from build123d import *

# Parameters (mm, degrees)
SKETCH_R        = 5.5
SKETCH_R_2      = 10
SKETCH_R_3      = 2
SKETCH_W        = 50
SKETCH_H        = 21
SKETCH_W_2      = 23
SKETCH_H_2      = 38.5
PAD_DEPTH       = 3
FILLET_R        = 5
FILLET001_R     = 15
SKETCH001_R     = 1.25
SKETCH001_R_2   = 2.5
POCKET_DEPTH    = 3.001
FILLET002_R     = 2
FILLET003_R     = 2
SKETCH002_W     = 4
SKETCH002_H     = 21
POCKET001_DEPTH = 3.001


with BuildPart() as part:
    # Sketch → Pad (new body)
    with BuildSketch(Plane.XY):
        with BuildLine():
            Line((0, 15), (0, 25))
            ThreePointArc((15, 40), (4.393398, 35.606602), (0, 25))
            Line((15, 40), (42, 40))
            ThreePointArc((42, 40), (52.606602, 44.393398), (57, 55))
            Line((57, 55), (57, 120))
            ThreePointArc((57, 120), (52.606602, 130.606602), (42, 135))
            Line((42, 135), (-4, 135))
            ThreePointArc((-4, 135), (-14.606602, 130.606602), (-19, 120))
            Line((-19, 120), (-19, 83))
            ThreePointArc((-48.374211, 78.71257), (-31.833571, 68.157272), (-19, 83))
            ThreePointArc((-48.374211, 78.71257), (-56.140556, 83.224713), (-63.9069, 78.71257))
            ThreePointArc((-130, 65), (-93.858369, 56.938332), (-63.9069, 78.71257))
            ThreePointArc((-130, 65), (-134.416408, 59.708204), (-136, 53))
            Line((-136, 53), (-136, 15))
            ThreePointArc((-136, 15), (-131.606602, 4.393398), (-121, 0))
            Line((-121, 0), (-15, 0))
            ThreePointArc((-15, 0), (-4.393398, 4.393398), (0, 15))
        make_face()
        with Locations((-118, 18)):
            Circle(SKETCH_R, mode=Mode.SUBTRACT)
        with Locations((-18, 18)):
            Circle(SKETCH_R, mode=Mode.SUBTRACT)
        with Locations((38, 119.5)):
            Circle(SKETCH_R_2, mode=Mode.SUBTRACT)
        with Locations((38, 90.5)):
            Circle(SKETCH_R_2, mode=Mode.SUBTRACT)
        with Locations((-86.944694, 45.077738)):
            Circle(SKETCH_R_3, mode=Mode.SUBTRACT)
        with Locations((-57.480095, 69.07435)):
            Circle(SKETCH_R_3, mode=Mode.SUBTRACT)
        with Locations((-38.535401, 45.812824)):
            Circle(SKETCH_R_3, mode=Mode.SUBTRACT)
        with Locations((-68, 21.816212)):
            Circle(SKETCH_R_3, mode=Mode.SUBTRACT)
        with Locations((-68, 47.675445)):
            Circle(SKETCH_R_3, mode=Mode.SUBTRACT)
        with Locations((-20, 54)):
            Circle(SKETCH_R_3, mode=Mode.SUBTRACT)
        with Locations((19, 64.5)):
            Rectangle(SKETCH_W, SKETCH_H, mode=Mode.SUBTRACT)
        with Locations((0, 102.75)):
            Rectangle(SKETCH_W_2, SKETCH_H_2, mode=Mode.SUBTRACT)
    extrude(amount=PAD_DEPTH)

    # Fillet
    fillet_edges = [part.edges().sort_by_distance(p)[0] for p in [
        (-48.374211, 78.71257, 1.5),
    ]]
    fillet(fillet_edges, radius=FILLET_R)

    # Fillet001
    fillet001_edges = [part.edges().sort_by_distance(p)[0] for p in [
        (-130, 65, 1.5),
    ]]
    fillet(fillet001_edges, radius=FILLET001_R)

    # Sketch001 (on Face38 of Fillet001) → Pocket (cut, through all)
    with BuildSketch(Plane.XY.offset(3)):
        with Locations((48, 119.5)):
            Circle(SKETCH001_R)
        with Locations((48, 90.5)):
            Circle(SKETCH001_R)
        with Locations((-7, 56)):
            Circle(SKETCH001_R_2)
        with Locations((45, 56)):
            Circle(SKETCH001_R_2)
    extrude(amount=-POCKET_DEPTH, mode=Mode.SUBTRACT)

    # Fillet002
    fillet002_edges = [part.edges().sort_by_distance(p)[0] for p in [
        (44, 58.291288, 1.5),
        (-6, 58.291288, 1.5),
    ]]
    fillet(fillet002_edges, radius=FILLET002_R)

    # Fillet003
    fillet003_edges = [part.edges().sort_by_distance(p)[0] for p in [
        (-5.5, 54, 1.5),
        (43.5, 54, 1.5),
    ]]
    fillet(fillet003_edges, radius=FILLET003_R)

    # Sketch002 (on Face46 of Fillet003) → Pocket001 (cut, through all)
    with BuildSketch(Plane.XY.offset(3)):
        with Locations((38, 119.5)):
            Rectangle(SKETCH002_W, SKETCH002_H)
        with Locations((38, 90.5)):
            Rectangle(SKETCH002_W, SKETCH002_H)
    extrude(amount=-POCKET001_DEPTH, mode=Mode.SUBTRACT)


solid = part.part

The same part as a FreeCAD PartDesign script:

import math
import FreeCAD as App
import Part
import Sketcher
from FreeCAD import Vector


def edges_at(feature, points):
    """Names of the edges that pass closest to the given points."""
    edges = feature.Shape.Edges
    near = lambda p: min(range(len(edges)), key=lambda i: edges[i].distToShape(Part.Vertex(*p))[0])
    return sorted({f"Edge{near(p) + 1}" for p in points})

doc = App.newDocument("Part")
params = doc.addObject("Spreadsheet::Sheet", "Params")
for row, (alias, value) in enumerate([
    ("sketch1_diameter", "11 mm"),
    ("sketch1_diameter2", "4 mm"),
    ("sketch1_diameter3", "20 mm"),
    ("sketch1_radius", "14.999999 mm"),
    ("sketch1_radius2", "45 mm"),
    ("pad1_length", "3 mm"),
    ("fillet_radius", "5 mm"),
    ("fillet2_radius", "15 mm"),
    ("sketch2_diameter", "5 mm"),
    ("sketch2_diameter2", "2.5 mm"),
    ("fillet3_radius", "2 mm"),
    ("fillet4_radius", "2 mm"),
    ("sketch3_width", "4 mm"),
    ("sketch3_height", "21 mm"),
], start=1):
    params.set(f"A{row}", alias)
    params.set(f"B{row}", "=" + value)
    params.setAlias(f"B{row}", alias)

body = doc.addObject("PartDesign::Body", "Body")

sketch1 = body.newObject("Sketcher::SketchObject", "Sketch")
sketch1.AttachmentSupport = (doc.getObject("XY_Plane"), [""])
sketch1.MapMode = "FlatFace"
sketch1.addGeometry([
    Part.LineSegment(Vector(0, 15, 0), Vector(0, 25, 0)),
    Part.ArcOfCircle(Part.Circle(Vector(15, 25, 0), Vector(0, 0, 1), 15), math.radians(90), math.radians(180)),
    Part.LineSegment(Vector(15, 40, 0), Vector(42, 40, 0)),
    Part.ArcOfCircle(Part.Circle(Vector(42, 55, 0), Vector(0, 0, 1), 15), math.radians(-90), math.radians(0)),
    Part.LineSegment(Vector(57, 55, 0), Vector(57, 120, 0)),
    Part.ArcOfCircle(Part.Circle(Vector(42, 120, 0), Vector(0, 0, 1), 15), math.radians(0), math.radians(90)),
    Part.LineSegment(Vector(42, 135, 0), Vector(-4, 135, 0)),
    Part.ArcOfCircle(Part.Circle(Vector(-4, 120, 0), Vector(0, 0, 1), 15), math.radians(90), math.radians(180)),
    Part.LineSegment(Vector(-19, 120, 0), Vector(-19, 83, 0)),
    Part.ArcOfCircle(Part.Circle(Vector(-34, 83, 0), Vector(0, 0, 1), 15), math.radians(-163), math.radians(0)),
    Part.ArcOfCircle(Part.Circle(Vector(-56.1, 74.3, 0), Vector(0, 0, 1), 8.9), math.radians(30), math.radians(150)),
    Part.ArcOfCircle(Part.Circle(Vector(-103, 101, 0), Vector(0, 0, 1), 45), math.radians(-127), math.radians(-30)),
    Part.ArcOfCircle(Part.Circle(Vector(-121, 53, 0), Vector(0, 0, 1), 15), math.radians(127), math.radians(180)),
    Part.LineSegment(Vector(-136, 53, 0), Vector(-136, 15, 0)),
    Part.ArcOfCircle(Part.Circle(Vector(-121, 15, 0), Vector(0, 0, 1), 15), math.radians(180), math.radians(270)),
    Part.LineSegment(Vector(-121, 0, 0), Vector(-15, 0, 0)),
    Part.ArcOfCircle(Part.Circle(Vector(-15, 15, 0), Vector(0, 0, 1), 15), math.radians(-90), math.radians(0)),
    Part.Circle(Vector(-118, 18, 0), Vector(0, 0, 1), 5.5),
    Part.Circle(Vector(-68, 21.8, 0), Vector(0, 0, 1), 2),
    Part.Circle(Vector(-86.9, 45.1, 0), Vector(0, 0, 1), 2),
    Part.Circle(Vector(-68, 47.7, 0), Vector(0, 0, 1), 2),
    Part.Circle(Vector(-38.5, 45.8, 0), Vector(0, 0, 1), 2),
    Part.Circle(Vector(-57.5, 69.1, 0), Vector(0, 0, 1), 2),
    Part.Circle(Vector(-18, 18, 0), Vector(0, 0, 1), 5.5),
    Part.Circle(Vector(-20, 54, 0), Vector(0, 0, 1), 2),
    Part.LineSegment(Vector(44, 54, 0), Vector(-6, 54, 0)),
    Part.LineSegment(Vector(-6, 54, 0), Vector(-6, 75, 0)),
    Part.LineSegment(Vector(-6, 75, 0), Vector(44, 75, 0)),
    Part.LineSegment(Vector(44, 75, 0), Vector(44, 54, 0)),
    Part.Circle(Vector(38, 90.5, 0), Vector(0, 0, 1), 10),
    Part.LineSegment(Vector(11.5, 83.5, 0), Vector(-11.5, 83.5, 0)),
    Part.LineSegment(Vector(-11.5, 83.5, 0), Vector(-11.5, 122, 0)),
    Part.LineSegment(Vector(-11.5, 122, 0), Vector(11.5, 122, 0)),
    Part.LineSegment(Vector(11.5, 122, 0), Vector(11.5, 83.5, 0)),
    Part.Circle(Vector(38, 119.5, 0), Vector(0, 0, 1), 10),
], False)
sketch1.addConstraint([
    Sketcher.Constraint("Tangent", 0, 2, 1, 2),
    Sketcher.Constraint("Tangent", 1, 1, 2, 1),
    Sketcher.Constraint("Tangent", 2, 2, 3, 1),
    Sketcher.Constraint("Tangent", 3, 2, 4, 1),
    Sketcher.Constraint("Tangent", 4, 2, 5, 1),
    Sketcher.Constraint("Tangent", 5, 2, 6, 1),
    Sketcher.Constraint("Tangent", 6, 2, 7, 1),
    Sketcher.Constraint("Tangent", 7, 2, 8, 1),
    Sketcher.Constraint("Tangent", 8, 2, 9, 2),
    Sketcher.Constraint("Coincident", 9, 1, 10, 1),
    Sketcher.Constraint("Tangent", 10, 2, 11, 2),
    Sketcher.Constraint("Coincident", 11, 1, 12, 1),
    Sketcher.Constraint("Tangent", 12, 2, 13, 1),
    Sketcher.Constraint("Tangent", 13, 2, 14, 1),
    Sketcher.Constraint("Tangent", 14, 2, 15, 1),
    Sketcher.Constraint("Tangent", 15, 2, 16, 1),
    Sketcher.Constraint("Tangent", 16, 2, 0, 1),
    Sketcher.Constraint("Coincident", 25, 2, 26, 1),
    Sketcher.Constraint("Coincident", 26, 2, 27, 1),
    Sketcher.Constraint("Coincident", 27, 2, 28, 1),
    Sketcher.Constraint("Coincident", 28, 2, 25, 1),
    Sketcher.Constraint("Coincident", 30, 2, 31, 1),
    Sketcher.Constraint("Coincident", 31, 2, 32, 1),
    Sketcher.Constraint("Coincident", 32, 2, 33, 1),
    Sketcher.Constraint("Coincident", 33, 2, 30, 1),
    Sketcher.Constraint("Vertical", 0),
    Sketcher.Constraint("Horizontal", 2),
    Sketcher.Constraint("Vertical", 4),
    Sketcher.Constraint("Horizontal", 6),
    Sketcher.Constraint("Vertical", 8),
    Sketcher.Constraint("Vertical", 13),
    Sketcher.Constraint("Horizontal", 15),
    Sketcher.Constraint("Horizontal", 25),
    Sketcher.Constraint("Vertical", 26),
    Sketcher.Constraint("Horizontal", 27),
    Sketcher.Constraint("Vertical", 28),
    Sketcher.Constraint("Horizontal", 30),
    Sketcher.Constraint("Vertical", 31),
    Sketcher.Constraint("Horizontal", 32),
    Sketcher.Constraint("Vertical", 33),
    Sketcher.Constraint("Equal", 1, 3),
    Sketcher.Constraint("Equal", 3, 5),
    Sketcher.Constraint("Equal", 5, 7),
    Sketcher.Constraint("Equal", 7, 9),
    Sketcher.Constraint("Equal", 9, 12),
    Sketcher.Constraint("Equal", 12, 14),
    Sketcher.Constraint("Equal", 14, 16),
    Sketcher.Constraint("Equal", 18, 19),
    Sketcher.Constraint("Equal", 19, 20),
    Sketcher.Constraint("Equal", 20, 21),
    Sketcher.Constraint("Equal", 21, 22),
    Sketcher.Constraint("Equal", 17, 23),
    Sketcher.Constraint("Equal", 22, 24),
    Sketcher.Constraint("Equal", 29, 34),
    Sketcher.Constraint("PointOnObject", 0, 2, -2),
    Sketcher.Constraint("PointOnObject", 14, 2, -1),
    Sketcher.Constraint("Horizontal", 17, 3, 23, 3),
    Sketcher.Constraint("Horizontal", 9, 1, 10, 2),
    Sketcher.Constraint("Horizontal", 24, 3, 25, 2),
    Sketcher.Constraint("Vertical", 18, 3, 20, 3),
    Sketcher.Constraint("Vertical", 29, 3, 34, 3),
    Sketcher.Constraint("Diameter", 17, 11.0),
    Sketcher.Constraint("Diameter", 18, 4.0),
    Sketcher.Constraint("Diameter", 29, 20.0),
    Sketcher.Constraint("Radius", 1, 14.999999),
    Sketcher.Constraint("Radius", 11, 45.0),
    Sketcher.Constraint("DistanceX", 2, 1, 2, 2, 27.0),
    Sketcher.Constraint("DistanceX", 6, 2, 6, 1, 46.0),
    Sketcher.Constraint("DistanceX", 15, 1, 15, 2, 106.0),
    Sketcher.Constraint("DistanceX", 25, 2, 25, 1, 50.0),
    Sketcher.Constraint("DistanceX", 30, 2, 30, 1, 23.0),
    Sketcher.Constraint("DistanceY", 0, 1, 0, 2, 10.0),
    Sketcher.Constraint("DistanceY", 4, 1, 4, 2, 65.0),
    Sketcher.Constraint("DistanceY", 8, 2, 8, 1, 37.0),
    Sketcher.Constraint("DistanceY", 13, 2, 13, 1, 38.0),
    Sketcher.Constraint("DistanceY", 26, 1, 26, 2, 21.0),
    Sketcher.Constraint("DistanceY", 31, 1, 31, 2, 38.5),
    Sketcher.Constraint("DistanceX", 11, 3, -1, 1, 103.0),
    Sketcher.Constraint("DistanceY", -1, 1, 11, 3, 101.0),
    Sketcher.Constraint("DistanceX", 17, 3, -1, 1, 118.0),
    Sketcher.Constraint("DistanceY", -1, 1, 17, 3, 18.0),
    Sketcher.Constraint("DistanceX", 18, 3, -1, 1, 68.0),
    Sketcher.Constraint("DistanceX", 23, 3, -1, 1, 18.0),
    Sketcher.Constraint("DistanceX", 24, 3, -1, 1, 20.0),
    Sketcher.Constraint("DistanceY", -1, 1, 24, 3, 54.0),
    Sketcher.Constraint("DistanceX", -1, 1, 29, 3, 38.0),
    Sketcher.Constraint("DistanceX", 25, 2, -1, 1, 6.0),
    Sketcher.Constraint("DistanceY", -1, 1, 31, 2, 122.0),
    Sketcher.Constraint("DistanceY", 29, 3, 34, 3, 29.0),
    Sketcher.Constraint("DistanceY", 33, 2, 29, 3, 7.0),
    Sketcher.Constraint("DistanceX", 30, 2, -1, 1, 11.5),
    Sketcher.Constraint("Radius", 10, 8.939825),
    Sketcher.Constraint("DistanceX", 21, 3, -1, 1, 38.535401),
    Sketcher.Constraint("DistanceX", 19, 3, 22, 3, 29.464599),
    Sketcher.Constraint("DistanceY", -1, 1, 18, 3, 21.816212),
    Sketcher.Constraint("DistanceY", -1, 1, 22, 3, 69.07435),
    Sketcher.Constraint("DistanceX", 19, 3, 10, 3, 30.804139),
    Sketcher.Constraint("DistanceY", 19, 3, 10, 3, 29.20715),
    Sketcher.Constraint("DistanceY", 21, 3, 20, 3, 1.862621),
    Sketcher.Constraint("DistanceY", 18, 3, 21, 3, 23.996612),
])
sketch1.setExpression("Constraints[61]", "Params.sketch1_diameter")
sketch1.setExpression("Constraints[62]", "Params.sketch1_diameter2")
sketch1.setExpression("Constraints[63]", "Params.sketch1_diameter3")
sketch1.setExpression("Constraints[64]", "Params.sketch1_radius")
sketch1.setExpression("Constraints[65]", "Params.sketch1_radius2")
pad1 = body.newObject("PartDesign::Pad", "Pad")
pad1.Profile = sketch1
pad1.setExpression("Length", "Params.pad1_length")
doc.recompute()

fillet = body.newObject("PartDesign::Fillet", "Fillet")
fillet.Base = (pad1, edges_at(pad1, [(-48.374, 78.713, 1.5)]))
fillet.setExpression("Radius", "Params.fillet_radius")
doc.recompute()

fillet2 = body.newObject("PartDesign::Fillet", "Fillet001")
fillet2.Base = (fillet, edges_at(fillet, [(-130, 65, 1.5)]))
fillet2.setExpression("Radius", "Params.fillet2_radius")

sketch2 = body.newObject("Sketcher::SketchObject", "Sketch001")
sketch2.AttachmentSupport = (doc.getObject("XY_Plane"), [""])
sketch2.MapMode = "FlatFace"
sketch2.AttachmentOffset = App.Placement(Vector(0, 0, 3), App.Rotation())
sketch2.addGeometry([
    Part.Circle(Vector(48, 119.5, 0), Vector(0, 0, 1), 1.2),
    Part.Circle(Vector(48, 90.5, 0), Vector(0, 0, 1), 1.2),
    Part.Circle(Vector(-7, 56, 0), Vector(0, 0, 1), 2.5),
    Part.Circle(Vector(45, 56, 0), Vector(0, 0, 1), 2.5),
], False)
sketch2.addConstraint([
    Sketcher.Constraint("Equal", 0, 1),
    Sketcher.Constraint("Equal", 2, 3),
    Sketcher.Constraint("Horizontal", 2, 3, 3, 3),
    Sketcher.Constraint("Vertical", 0, 3, 1, 3),
    Sketcher.Constraint("Diameter", 2, 5.0),
    Sketcher.Constraint("Diameter", 0, 2.5),
    Sketcher.Constraint("DistanceX", -1, 1, 0, 3, 48.0),
    Sketcher.Constraint("DistanceX", 2, 3, -1, 1, 7.0),
    Sketcher.Constraint("DistanceY", -1, 1, 2, 3, 56.0),
    Sketcher.Constraint("DistanceX", -1, 1, 3, 3, 45.0),
    Sketcher.Constraint("DistanceY", 1, 3, 0, 3, 29.0),
    Sketcher.Constraint("DistanceY", -1, 1, 0, 3, 119.5),
])
sketch2.setExpression("Constraints[4]", "Params.sketch2_diameter")
sketch2.setExpression("Constraints[5]", "Params.sketch2_diameter2")
pocket1 = body.newObject("PartDesign::Pocket", "Pocket")
pocket1.Profile = sketch2
pocket1.Type = "ThroughAll"
doc.recompute()

fillet3 = body.newObject("PartDesign::Fillet", "Fillet002")
fillet3.Base = (pocket1, edges_at(pocket1, [(44, 58.291, 1.5), (-6, 58.291, 1.5)]))
fillet3.setExpression("Radius", "Params.fillet3_radius")
doc.recompute()

fillet4 = body.newObject("PartDesign::Fillet", "Fillet003")
fillet4.Base = (fillet3, edges_at(fillet3, [(-5.5, 54, 1.5), (43.5, 54, 1.5)]))
fillet4.setExpression("Radius", "Params.fillet4_radius")

sketch3 = body.newObject("Sketcher::SketchObject", "Sketch002")
sketch3.AttachmentSupport = (doc.getObject("XY_Plane"), [""])
sketch3.MapMode = "FlatFace"
sketch3.AttachmentOffset = App.Placement(Vector(0, 0, 3), App.Rotation())
sketch3.addGeometry([
    Part.LineSegment(Vector(36, 130, 0), Vector(36, 109, 0)),
    Part.LineSegment(Vector(36, 109, 0), Vector(40, 109, 0)),
    Part.LineSegment(Vector(40, 109, 0), Vector(40, 130, 0)),
    Part.LineSegment(Vector(40, 130, 0), Vector(36, 130, 0)),
    Part.LineSegment(Vector(36, 101, 0), Vector(36, 80, 0)),
    Part.LineSegment(Vector(36, 80, 0), Vector(40, 80, 0)),
    Part.LineSegment(Vector(40, 80, 0), Vector(40, 101, 0)),
    Part.LineSegment(Vector(40, 101, 0), Vector(36, 101, 0)),
], False)
sketch3.addConstraint([
    Sketcher.Constraint("Coincident", 0, 2, 1, 1),
    Sketcher.Constraint("Coincident", 1, 2, 2, 1),
    Sketcher.Constraint("Coincident", 2, 2, 3, 1),
    Sketcher.Constraint("Coincident", 3, 2, 0, 1),
    Sketcher.Constraint("Coincident", 4, 2, 5, 1),
    Sketcher.Constraint("Coincident", 5, 2, 6, 1),
    Sketcher.Constraint("Coincident", 6, 2, 7, 1),
    Sketcher.Constraint("Coincident", 7, 2, 4, 1),
    Sketcher.Constraint("Vertical", 0),
    Sketcher.Constraint("Horizontal", 1),
    Sketcher.Constraint("Vertical", 2),
    Sketcher.Constraint("Horizontal", 3),
    Sketcher.Constraint("Vertical", 4),
    Sketcher.Constraint("Horizontal", 5),
    Sketcher.Constraint("Vertical", 6),
    Sketcher.Constraint("Horizontal", 7),
    Sketcher.Constraint("Vertical", 3, 2, 4, 2),
    Sketcher.Constraint("Vertical", 2, 2, 5, 2),
    Sketcher.Constraint("Equal", 2, 4),
    Sketcher.Constraint("DistanceX", 1, 1, 1, 2, 4.0),
    Sketcher.Constraint("DistanceY", 0, 2, 0, 1, 21.0),
    Sketcher.Constraint("DistanceX", -1, 1, 0, 2, 36.0),
    Sketcher.Constraint("DistanceY", -1, 1, 0, 2, 109.0),
    Sketcher.Constraint("DistanceY", -1, 1, 4, 2, 80.0),
])
sketch3.setExpression("Constraints[19]", "Params.sketch3_width")
sketch3.setExpression("Constraints[20]", "Params.sketch3_height")
pocket2 = body.newObject("PartDesign::Pocket", "Pocket001")
pocket2.Profile = sketch3
pocket2.Type = "ThroughAll"

doc.recompute()
